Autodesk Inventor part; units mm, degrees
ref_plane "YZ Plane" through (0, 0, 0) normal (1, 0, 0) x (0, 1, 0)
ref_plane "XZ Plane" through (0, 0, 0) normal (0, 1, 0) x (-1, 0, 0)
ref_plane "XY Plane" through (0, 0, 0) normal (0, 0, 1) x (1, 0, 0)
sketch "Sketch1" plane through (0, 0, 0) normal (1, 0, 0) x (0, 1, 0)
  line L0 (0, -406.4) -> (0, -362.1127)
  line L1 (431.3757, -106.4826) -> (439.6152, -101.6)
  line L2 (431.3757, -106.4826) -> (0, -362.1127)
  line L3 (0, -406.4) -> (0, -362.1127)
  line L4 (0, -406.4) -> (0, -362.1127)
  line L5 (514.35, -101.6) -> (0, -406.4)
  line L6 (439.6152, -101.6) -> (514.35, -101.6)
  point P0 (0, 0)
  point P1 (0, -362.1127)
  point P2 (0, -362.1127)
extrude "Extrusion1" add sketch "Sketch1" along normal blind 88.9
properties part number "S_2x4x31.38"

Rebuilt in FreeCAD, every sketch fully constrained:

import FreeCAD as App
import Part
import Sketcher
from FreeCAD import Vector
Q = App.Units.Quantity

doc = App.newDocument("Part")
body = doc.addObject("PartDesign::Body", "Body")

# Sketch on YZ plane
sketch1 = body.newObject("Sketcher::SketchObject", "Sketch")
sketch1.AttachmentSupport = (doc.getObject("YZ_Plane"), [""])
sketch1.MapMode = "FlatFace"
sketch1.addGeometry([
    Part.LineSegment(Vector(0, -362, 0), Vector(0, -406, 0)),  # 0
    Part.LineSegment(Vector(0, -406, 0), Vector(514, -102, 0)),  # 1
    Part.LineSegment(Vector(514, -102, 0), Vector(440, -102, 0)),  # 2
    Part.LineSegment(Vector(440, -102, 0), Vector(431, -106, 0)),  # 3
    Part.LineSegment(Vector(431, -106, 0), Vector(0, -362, 0)),  # 4
], False)
sketch1.addConstraint([
    Sketcher.Constraint("Coincident", 0, 2, 1, 1),
    Sketcher.Constraint("Coincident", 1, 2, 2, 1),
    Sketcher.Constraint("Coincident", 2, 2, 3, 1),
    Sketcher.Constraint("Coincident", 3, 2, 4, 1),
    Sketcher.Constraint("Coincident", 4, 2, 0, 1),
    Sketcher.Constraint("Vertical", 0),
    Sketcher.Constraint("Horizontal", 2),
    Sketcher.Constraint("PointOnObject", 0, 2, -2),
    Sketcher.Constraint("Parallel", 1, 3),
    Sketcher.Constraint("Parallel", 3, 4),
    Sketcher.Constraint("DistanceY", 0, 2, -1, 1, Q("16 in")),
    Sketcher.Constraint("DistanceY", 1, 2, -1, 1, Q("4 in")),
    Sketcher.Constraint("DistanceX", -1, 1, 1, 2, Q("20.25 in")),
    Sketcher.Constraint("DistanceY", 0, 2, 0, 1, Q("1.7436 in")),
    Sketcher.Constraint("DistanceX", -1, 1, 3, 2, Q("16.9833 in")),
])
pad1 = body.newObject("PartDesign::Pad", "Pad")
pad1.Profile = sketch1
pad1.Length = Q("3.5 in")

doc.recompute()
